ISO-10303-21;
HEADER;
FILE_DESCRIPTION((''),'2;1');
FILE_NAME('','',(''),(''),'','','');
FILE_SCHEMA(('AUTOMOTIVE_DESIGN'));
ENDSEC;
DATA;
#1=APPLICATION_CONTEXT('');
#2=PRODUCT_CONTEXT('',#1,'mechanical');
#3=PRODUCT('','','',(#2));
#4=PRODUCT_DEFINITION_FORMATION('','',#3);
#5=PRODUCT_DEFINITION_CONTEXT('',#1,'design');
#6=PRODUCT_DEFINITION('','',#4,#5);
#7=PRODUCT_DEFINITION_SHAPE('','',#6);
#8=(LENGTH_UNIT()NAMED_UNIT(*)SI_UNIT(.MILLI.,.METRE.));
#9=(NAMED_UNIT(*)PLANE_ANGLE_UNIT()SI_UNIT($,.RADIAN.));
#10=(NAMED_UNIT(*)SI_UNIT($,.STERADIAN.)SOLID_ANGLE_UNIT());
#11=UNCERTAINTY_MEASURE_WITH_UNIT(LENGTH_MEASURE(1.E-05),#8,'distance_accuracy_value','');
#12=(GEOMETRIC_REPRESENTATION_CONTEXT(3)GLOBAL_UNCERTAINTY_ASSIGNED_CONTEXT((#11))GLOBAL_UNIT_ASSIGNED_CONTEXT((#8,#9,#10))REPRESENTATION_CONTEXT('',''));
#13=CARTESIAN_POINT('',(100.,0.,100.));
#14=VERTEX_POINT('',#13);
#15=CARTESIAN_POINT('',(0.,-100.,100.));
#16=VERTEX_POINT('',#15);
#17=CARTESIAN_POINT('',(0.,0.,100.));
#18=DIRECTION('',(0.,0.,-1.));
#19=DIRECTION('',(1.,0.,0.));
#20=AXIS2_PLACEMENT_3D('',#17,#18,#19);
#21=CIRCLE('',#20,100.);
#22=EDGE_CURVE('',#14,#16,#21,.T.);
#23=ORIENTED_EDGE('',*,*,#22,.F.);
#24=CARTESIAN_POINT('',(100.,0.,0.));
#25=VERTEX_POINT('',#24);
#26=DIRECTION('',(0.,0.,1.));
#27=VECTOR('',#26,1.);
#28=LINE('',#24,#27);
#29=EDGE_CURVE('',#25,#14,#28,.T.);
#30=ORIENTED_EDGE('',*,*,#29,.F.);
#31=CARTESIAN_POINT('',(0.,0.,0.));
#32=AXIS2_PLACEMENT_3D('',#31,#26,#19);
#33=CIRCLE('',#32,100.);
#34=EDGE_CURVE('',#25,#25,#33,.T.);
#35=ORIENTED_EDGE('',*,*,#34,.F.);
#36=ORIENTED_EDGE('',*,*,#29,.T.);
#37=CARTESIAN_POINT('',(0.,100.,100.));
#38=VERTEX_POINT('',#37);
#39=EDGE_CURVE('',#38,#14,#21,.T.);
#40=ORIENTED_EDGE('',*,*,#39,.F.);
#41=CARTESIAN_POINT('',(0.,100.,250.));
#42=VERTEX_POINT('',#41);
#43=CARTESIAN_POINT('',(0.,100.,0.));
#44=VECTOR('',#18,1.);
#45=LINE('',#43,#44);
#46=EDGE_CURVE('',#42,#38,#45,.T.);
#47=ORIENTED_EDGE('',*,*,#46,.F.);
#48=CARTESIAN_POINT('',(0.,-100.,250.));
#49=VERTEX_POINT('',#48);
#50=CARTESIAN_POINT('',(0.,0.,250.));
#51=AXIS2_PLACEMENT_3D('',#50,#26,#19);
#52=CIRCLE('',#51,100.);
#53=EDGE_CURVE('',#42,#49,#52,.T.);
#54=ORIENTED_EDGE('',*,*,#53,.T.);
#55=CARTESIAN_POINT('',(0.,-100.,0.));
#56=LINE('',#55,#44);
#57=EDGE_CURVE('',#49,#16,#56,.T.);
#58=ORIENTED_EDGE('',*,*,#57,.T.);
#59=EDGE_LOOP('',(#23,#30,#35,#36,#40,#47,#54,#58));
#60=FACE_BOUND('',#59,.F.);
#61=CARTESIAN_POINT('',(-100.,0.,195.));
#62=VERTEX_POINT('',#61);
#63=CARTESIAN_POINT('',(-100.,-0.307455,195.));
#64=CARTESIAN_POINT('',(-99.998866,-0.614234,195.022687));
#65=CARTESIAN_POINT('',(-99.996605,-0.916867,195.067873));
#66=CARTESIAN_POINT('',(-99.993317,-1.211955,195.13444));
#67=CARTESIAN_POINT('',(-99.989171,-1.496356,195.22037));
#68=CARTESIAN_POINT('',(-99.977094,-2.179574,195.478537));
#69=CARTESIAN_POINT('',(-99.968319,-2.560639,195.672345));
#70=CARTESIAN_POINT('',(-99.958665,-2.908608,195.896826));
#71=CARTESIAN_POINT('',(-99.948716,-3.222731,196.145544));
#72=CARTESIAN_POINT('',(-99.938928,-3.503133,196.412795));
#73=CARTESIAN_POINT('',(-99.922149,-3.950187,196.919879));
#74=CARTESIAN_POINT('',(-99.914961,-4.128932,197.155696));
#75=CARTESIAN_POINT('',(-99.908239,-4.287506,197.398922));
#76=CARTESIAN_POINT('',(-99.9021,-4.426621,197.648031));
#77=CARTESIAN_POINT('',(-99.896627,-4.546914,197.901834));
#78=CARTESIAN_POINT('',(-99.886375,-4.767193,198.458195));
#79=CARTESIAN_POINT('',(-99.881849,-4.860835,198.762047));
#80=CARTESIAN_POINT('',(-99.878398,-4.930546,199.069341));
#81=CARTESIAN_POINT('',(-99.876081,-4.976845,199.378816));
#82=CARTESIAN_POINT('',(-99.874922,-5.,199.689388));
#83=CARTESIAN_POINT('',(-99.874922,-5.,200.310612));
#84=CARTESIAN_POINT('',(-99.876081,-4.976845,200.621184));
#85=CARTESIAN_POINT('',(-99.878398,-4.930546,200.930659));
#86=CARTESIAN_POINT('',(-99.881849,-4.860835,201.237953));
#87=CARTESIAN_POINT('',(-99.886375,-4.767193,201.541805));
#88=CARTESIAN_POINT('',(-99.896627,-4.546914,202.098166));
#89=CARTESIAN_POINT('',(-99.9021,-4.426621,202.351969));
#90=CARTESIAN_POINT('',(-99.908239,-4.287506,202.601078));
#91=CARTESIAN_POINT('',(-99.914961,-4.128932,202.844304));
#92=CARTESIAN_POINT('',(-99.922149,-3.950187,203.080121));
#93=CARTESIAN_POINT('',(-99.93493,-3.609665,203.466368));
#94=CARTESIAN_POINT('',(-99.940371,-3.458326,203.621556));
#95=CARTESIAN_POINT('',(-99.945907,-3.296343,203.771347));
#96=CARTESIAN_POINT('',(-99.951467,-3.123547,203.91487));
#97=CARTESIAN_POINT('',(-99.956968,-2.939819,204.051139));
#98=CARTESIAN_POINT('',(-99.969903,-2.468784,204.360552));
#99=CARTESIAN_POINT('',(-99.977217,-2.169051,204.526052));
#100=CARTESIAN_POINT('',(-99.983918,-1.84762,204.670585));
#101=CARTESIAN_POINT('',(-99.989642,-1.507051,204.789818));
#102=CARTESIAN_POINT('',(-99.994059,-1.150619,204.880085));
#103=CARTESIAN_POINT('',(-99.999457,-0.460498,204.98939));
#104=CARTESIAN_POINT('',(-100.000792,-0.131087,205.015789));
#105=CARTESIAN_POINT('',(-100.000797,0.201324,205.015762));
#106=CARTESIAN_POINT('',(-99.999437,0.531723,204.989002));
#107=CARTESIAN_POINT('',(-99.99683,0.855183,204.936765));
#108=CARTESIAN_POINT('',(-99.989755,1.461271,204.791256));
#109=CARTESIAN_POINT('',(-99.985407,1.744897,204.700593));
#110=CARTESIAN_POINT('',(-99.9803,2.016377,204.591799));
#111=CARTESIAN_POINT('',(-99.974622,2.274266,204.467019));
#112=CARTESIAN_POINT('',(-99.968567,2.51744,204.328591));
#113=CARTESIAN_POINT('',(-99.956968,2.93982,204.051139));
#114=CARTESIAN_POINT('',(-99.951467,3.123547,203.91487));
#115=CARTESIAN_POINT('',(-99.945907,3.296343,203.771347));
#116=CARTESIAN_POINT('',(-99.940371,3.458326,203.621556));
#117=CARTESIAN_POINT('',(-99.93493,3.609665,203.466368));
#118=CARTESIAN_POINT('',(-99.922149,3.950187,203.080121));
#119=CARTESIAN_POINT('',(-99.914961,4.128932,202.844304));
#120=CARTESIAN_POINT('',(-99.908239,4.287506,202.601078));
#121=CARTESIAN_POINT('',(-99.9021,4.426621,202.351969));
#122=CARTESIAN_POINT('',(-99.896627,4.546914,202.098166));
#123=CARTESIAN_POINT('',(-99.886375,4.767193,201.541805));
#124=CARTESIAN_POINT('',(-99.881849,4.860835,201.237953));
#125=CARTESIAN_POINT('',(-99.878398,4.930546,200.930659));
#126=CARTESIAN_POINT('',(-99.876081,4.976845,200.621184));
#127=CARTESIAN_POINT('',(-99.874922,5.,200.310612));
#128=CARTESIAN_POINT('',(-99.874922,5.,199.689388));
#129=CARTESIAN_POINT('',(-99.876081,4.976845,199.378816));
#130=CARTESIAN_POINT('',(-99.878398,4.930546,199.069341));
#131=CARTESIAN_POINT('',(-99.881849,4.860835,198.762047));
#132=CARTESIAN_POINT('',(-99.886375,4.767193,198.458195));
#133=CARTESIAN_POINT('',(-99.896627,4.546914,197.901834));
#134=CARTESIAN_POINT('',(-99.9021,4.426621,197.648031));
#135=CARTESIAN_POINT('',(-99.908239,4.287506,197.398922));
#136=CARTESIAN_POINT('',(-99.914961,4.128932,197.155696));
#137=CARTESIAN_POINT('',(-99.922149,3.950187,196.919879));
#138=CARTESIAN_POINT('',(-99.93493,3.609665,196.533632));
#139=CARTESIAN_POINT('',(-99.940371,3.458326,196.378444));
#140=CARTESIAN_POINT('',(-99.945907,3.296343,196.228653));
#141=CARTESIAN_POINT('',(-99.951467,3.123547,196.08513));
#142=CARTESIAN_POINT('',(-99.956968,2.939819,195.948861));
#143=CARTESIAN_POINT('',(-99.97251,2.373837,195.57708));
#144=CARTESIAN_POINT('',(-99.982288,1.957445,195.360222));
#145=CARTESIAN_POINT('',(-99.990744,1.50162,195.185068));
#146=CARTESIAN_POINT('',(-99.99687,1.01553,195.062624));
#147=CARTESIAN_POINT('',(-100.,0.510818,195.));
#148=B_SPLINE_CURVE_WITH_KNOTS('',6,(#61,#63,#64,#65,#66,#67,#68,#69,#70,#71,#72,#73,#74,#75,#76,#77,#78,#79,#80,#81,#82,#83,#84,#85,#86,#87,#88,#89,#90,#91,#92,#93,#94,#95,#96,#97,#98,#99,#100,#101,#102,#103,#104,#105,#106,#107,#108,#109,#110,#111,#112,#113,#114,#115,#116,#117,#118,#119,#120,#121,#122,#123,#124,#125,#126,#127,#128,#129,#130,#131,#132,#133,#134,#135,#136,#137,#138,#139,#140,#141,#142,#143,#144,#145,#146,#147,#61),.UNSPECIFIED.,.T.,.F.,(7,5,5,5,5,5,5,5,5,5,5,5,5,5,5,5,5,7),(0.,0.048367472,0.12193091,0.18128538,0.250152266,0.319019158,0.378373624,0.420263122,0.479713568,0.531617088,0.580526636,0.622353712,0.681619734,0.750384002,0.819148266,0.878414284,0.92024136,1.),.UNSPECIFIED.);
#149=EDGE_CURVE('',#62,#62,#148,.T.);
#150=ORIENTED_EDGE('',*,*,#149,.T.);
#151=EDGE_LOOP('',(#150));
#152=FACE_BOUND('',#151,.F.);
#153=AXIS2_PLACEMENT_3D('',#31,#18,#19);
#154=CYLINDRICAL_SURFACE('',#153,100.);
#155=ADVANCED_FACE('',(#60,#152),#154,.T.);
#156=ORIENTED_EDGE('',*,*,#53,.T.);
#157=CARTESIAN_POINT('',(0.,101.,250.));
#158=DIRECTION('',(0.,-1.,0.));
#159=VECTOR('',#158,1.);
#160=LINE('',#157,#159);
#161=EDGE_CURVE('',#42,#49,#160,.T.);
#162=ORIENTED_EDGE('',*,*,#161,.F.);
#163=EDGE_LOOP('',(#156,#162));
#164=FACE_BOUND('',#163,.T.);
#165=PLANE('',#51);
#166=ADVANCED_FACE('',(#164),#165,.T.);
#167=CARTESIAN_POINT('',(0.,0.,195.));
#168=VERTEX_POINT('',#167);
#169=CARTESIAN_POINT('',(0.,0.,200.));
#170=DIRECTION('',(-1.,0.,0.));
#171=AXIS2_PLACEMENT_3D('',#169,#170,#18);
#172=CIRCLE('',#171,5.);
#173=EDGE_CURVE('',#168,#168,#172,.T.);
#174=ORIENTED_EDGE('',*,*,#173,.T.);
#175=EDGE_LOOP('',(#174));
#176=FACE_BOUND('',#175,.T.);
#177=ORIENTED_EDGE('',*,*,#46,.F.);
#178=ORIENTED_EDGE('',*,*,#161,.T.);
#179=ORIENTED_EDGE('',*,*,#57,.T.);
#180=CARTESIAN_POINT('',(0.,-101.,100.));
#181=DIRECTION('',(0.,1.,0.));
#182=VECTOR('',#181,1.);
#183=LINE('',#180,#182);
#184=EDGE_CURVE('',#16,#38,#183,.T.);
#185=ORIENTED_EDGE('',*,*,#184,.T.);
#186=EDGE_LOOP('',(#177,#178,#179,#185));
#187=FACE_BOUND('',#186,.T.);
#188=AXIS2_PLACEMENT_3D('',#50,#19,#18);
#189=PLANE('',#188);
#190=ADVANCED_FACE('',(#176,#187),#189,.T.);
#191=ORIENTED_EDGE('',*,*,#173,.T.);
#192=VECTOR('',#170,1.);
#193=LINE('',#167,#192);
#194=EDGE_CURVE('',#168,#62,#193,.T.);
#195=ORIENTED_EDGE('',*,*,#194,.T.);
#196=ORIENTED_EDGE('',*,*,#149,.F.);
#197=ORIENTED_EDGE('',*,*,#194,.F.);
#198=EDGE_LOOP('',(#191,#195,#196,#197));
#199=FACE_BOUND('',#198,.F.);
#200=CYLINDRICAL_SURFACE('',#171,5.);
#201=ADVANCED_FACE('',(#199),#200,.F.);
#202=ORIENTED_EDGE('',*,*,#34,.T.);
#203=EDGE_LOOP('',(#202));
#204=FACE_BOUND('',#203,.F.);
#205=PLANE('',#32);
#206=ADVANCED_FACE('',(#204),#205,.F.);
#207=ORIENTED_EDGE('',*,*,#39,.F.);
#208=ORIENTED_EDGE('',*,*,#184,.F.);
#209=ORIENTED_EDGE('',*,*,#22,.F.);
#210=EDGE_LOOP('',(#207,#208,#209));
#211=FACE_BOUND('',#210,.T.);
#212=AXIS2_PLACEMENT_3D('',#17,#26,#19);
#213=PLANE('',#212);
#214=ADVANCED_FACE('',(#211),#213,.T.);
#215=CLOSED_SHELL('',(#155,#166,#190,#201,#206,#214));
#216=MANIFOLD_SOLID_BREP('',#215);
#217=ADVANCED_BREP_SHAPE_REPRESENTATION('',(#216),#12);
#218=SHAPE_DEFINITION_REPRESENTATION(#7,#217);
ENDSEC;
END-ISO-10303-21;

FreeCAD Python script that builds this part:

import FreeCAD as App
import Part
import Sketcher


def add_polygon(sketch, points):
    """Adds a closed chain of lines whose ends are joined by coincident constraints."""
    first, n = sketch.GeometryCount, len(points)
    for a, b in zip(points, points[1:] + points[:1]):
        sketch.addGeometry(Part.LineSegment(App.Vector(*a, 0), App.Vector(*b, 0)), False)
    for i in range(n):
        sketch.addConstraint(Sketcher.Constraint("Coincident", first + i, 2, first + (i + 1) % n, 1))

doc = App.newDocument("Part")
params = doc.addObject("Spreadsheet::Sheet", "Params")
for row, (alias, value) in enumerate([
    ("sketch1_diameter", "200 mm"),
    ("pad1_length", "250 mm"),
    ("sketch2_width", "100 mm"),
    ("sketch2_height", "150 mm"),
    ("sketch3_diameter", "10 mm"),
    ("hole_diameter", "10 mm"),
], start=1):
    params.set(f"A{row}", alias)
    params.set(f"B{row}", "=" + value)
    params.setAlias(f"B{row}", alias)

body = doc.addObject("PartDesign::Body", "Body")

# Sketch on XY plane
sketch1 = body.newObject("Sketcher::SketchObject", "Sketch")
sketch1.AttachmentSupport = (doc.getObject("XY_Plane"), [""])
sketch1.MapMode = "FlatFace"
sketch1.addGeometry(Part.Circle(App.Vector(0, 0, 0), App.Vector(0, 0, 1), 100), False)
sketch1.addConstraint(Sketcher.Constraint("Coincident", 0, 3, -1, 1))
sketch1.addConstraint(Sketcher.Constraint("Diameter", 0, 200.0))
sketch1.setExpression("Constraints[1]", "Params.sketch1_diameter")
pad1 = body.newObject("PartDesign::Pad", "Pad")
pad1.Profile = sketch1
pad1.setExpression("Length", "Params.pad1_length")

# Sketch on XZ plane
sketch2 = body.newObject("Sketcher::SketchObject", "Sketch001")
sketch2.AttachmentSupport = (doc.getObject("XZ_Plane"), [""])
sketch2.MapMode = "FlatFace"
add_polygon(sketch2, [(100, 100), (100, 250), (0, 250), (0, 100)])  # lines 0-3
sketch2.addConstraint(Sketcher.Constraint("Vertical", 0))
sketch2.addConstraint(Sketcher.Constraint("Horizontal", 1))
sketch2.addConstraint(Sketcher.Constraint("Vertical", 2))
sketch2.addConstraint(Sketcher.Constraint("Horizontal", 3))
sketch2.addConstraint(Sketcher.Constraint("PointOnObject", 1, 2, -2))
sketch2.addConstraint(Sketcher.Constraint("DistanceX", 1, 2, 1, 1, 100.0))
sketch2.addConstraint(Sketcher.Constraint("DistanceY", 0, 1, 0, 2, 150.0))
sketch2.addConstraint(Sketcher.Constraint("DistanceY", -1, 1, 2, 2, 100.0))
sketch2.setExpression("Constraints[9]", "Params.sketch2_width")
sketch2.setExpression("Constraints[10]", "Params.sketch2_height")
pocket1 = body.newObject("PartDesign::Pocket", "Pocket")
pocket1.Profile = sketch2
pocket1.Type = "ThroughAll"
pocket1.Midplane = True

# Sketch on YZ plane
sketch3 = body.newObject("Sketcher::SketchObject", "Sketch002")
sketch3.AttachmentSupport = (doc.getObject("YZ_Plane"), [""])
sketch3.MapMode = "FlatFace"
sketch3.addGeometry(Part.Circle(App.Vector(0, 200, 0), App.Vector(0, 0, 1), 5), False)
sketch3.addConstraint(Sketcher.Constraint("PointOnObject", 0, 3, -2))
sketch3.addConstraint(Sketcher.Constraint("Diameter", 0, 10.0))
sketch3.addConstraint(Sketcher.Constraint("DistanceY", -1, 1, 0, 3, 200.0))
sketch3.setExpression("Constraints[1]", "Params.sketch3_diameter")
doc.recompute()
hole = body.newObject("PartDesign::Hole", "Hole")
hole.Profile = sketch3
hole.ThreadType = "None"
hole.setExpression("Diameter", "Params.hole_diameter")
hole.DepthType = "ThroughAll"

doc.recompute()
